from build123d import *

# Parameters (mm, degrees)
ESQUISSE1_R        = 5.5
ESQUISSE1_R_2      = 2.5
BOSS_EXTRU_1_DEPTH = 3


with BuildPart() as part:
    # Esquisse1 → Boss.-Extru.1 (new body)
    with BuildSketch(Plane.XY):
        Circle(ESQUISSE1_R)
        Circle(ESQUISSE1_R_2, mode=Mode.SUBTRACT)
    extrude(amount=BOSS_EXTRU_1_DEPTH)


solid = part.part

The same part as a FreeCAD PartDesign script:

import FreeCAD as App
import Part
import Sketcher
from FreeCAD import Vector
Q = App.Units.Quantity

doc = App.newDocument("Part")
body = doc.addObject("PartDesign::Body", "Body")

# Sketch on XY plane
sketch1 = body.newObject("Sketcher::SketchObject", "Sketch")
sketch1.AttachmentSupport = (doc.getObject("XY_Plane"), [""])
sketch1.MapMode = "FlatFace"
sketch1.addGeometry([
    Part.Circle(Vector(0, 0, 0), Vector(0, 0, 1), 5.5),
    Part.Circle(Vector(0, 0, 0), Vector(0, 0, 1), 2.5),
], False)
sketch1.addConstraint([
    Sketcher.Constraint("Coincident", 0, 3, -1, 1),
    Sketcher.Constraint("Coincident", 1, 3, -1, 1),
    Sketcher.Constraint("Diameter", 0, Q("11 mm")),
    Sketcher.Constraint("Diameter", 1, Q("5 mm")),
])
pad1 = body.newObject("PartDesign::Pad", "Pad")
pad1.Profile = sketch1
pad1.Length = 3

doc.recompute()
